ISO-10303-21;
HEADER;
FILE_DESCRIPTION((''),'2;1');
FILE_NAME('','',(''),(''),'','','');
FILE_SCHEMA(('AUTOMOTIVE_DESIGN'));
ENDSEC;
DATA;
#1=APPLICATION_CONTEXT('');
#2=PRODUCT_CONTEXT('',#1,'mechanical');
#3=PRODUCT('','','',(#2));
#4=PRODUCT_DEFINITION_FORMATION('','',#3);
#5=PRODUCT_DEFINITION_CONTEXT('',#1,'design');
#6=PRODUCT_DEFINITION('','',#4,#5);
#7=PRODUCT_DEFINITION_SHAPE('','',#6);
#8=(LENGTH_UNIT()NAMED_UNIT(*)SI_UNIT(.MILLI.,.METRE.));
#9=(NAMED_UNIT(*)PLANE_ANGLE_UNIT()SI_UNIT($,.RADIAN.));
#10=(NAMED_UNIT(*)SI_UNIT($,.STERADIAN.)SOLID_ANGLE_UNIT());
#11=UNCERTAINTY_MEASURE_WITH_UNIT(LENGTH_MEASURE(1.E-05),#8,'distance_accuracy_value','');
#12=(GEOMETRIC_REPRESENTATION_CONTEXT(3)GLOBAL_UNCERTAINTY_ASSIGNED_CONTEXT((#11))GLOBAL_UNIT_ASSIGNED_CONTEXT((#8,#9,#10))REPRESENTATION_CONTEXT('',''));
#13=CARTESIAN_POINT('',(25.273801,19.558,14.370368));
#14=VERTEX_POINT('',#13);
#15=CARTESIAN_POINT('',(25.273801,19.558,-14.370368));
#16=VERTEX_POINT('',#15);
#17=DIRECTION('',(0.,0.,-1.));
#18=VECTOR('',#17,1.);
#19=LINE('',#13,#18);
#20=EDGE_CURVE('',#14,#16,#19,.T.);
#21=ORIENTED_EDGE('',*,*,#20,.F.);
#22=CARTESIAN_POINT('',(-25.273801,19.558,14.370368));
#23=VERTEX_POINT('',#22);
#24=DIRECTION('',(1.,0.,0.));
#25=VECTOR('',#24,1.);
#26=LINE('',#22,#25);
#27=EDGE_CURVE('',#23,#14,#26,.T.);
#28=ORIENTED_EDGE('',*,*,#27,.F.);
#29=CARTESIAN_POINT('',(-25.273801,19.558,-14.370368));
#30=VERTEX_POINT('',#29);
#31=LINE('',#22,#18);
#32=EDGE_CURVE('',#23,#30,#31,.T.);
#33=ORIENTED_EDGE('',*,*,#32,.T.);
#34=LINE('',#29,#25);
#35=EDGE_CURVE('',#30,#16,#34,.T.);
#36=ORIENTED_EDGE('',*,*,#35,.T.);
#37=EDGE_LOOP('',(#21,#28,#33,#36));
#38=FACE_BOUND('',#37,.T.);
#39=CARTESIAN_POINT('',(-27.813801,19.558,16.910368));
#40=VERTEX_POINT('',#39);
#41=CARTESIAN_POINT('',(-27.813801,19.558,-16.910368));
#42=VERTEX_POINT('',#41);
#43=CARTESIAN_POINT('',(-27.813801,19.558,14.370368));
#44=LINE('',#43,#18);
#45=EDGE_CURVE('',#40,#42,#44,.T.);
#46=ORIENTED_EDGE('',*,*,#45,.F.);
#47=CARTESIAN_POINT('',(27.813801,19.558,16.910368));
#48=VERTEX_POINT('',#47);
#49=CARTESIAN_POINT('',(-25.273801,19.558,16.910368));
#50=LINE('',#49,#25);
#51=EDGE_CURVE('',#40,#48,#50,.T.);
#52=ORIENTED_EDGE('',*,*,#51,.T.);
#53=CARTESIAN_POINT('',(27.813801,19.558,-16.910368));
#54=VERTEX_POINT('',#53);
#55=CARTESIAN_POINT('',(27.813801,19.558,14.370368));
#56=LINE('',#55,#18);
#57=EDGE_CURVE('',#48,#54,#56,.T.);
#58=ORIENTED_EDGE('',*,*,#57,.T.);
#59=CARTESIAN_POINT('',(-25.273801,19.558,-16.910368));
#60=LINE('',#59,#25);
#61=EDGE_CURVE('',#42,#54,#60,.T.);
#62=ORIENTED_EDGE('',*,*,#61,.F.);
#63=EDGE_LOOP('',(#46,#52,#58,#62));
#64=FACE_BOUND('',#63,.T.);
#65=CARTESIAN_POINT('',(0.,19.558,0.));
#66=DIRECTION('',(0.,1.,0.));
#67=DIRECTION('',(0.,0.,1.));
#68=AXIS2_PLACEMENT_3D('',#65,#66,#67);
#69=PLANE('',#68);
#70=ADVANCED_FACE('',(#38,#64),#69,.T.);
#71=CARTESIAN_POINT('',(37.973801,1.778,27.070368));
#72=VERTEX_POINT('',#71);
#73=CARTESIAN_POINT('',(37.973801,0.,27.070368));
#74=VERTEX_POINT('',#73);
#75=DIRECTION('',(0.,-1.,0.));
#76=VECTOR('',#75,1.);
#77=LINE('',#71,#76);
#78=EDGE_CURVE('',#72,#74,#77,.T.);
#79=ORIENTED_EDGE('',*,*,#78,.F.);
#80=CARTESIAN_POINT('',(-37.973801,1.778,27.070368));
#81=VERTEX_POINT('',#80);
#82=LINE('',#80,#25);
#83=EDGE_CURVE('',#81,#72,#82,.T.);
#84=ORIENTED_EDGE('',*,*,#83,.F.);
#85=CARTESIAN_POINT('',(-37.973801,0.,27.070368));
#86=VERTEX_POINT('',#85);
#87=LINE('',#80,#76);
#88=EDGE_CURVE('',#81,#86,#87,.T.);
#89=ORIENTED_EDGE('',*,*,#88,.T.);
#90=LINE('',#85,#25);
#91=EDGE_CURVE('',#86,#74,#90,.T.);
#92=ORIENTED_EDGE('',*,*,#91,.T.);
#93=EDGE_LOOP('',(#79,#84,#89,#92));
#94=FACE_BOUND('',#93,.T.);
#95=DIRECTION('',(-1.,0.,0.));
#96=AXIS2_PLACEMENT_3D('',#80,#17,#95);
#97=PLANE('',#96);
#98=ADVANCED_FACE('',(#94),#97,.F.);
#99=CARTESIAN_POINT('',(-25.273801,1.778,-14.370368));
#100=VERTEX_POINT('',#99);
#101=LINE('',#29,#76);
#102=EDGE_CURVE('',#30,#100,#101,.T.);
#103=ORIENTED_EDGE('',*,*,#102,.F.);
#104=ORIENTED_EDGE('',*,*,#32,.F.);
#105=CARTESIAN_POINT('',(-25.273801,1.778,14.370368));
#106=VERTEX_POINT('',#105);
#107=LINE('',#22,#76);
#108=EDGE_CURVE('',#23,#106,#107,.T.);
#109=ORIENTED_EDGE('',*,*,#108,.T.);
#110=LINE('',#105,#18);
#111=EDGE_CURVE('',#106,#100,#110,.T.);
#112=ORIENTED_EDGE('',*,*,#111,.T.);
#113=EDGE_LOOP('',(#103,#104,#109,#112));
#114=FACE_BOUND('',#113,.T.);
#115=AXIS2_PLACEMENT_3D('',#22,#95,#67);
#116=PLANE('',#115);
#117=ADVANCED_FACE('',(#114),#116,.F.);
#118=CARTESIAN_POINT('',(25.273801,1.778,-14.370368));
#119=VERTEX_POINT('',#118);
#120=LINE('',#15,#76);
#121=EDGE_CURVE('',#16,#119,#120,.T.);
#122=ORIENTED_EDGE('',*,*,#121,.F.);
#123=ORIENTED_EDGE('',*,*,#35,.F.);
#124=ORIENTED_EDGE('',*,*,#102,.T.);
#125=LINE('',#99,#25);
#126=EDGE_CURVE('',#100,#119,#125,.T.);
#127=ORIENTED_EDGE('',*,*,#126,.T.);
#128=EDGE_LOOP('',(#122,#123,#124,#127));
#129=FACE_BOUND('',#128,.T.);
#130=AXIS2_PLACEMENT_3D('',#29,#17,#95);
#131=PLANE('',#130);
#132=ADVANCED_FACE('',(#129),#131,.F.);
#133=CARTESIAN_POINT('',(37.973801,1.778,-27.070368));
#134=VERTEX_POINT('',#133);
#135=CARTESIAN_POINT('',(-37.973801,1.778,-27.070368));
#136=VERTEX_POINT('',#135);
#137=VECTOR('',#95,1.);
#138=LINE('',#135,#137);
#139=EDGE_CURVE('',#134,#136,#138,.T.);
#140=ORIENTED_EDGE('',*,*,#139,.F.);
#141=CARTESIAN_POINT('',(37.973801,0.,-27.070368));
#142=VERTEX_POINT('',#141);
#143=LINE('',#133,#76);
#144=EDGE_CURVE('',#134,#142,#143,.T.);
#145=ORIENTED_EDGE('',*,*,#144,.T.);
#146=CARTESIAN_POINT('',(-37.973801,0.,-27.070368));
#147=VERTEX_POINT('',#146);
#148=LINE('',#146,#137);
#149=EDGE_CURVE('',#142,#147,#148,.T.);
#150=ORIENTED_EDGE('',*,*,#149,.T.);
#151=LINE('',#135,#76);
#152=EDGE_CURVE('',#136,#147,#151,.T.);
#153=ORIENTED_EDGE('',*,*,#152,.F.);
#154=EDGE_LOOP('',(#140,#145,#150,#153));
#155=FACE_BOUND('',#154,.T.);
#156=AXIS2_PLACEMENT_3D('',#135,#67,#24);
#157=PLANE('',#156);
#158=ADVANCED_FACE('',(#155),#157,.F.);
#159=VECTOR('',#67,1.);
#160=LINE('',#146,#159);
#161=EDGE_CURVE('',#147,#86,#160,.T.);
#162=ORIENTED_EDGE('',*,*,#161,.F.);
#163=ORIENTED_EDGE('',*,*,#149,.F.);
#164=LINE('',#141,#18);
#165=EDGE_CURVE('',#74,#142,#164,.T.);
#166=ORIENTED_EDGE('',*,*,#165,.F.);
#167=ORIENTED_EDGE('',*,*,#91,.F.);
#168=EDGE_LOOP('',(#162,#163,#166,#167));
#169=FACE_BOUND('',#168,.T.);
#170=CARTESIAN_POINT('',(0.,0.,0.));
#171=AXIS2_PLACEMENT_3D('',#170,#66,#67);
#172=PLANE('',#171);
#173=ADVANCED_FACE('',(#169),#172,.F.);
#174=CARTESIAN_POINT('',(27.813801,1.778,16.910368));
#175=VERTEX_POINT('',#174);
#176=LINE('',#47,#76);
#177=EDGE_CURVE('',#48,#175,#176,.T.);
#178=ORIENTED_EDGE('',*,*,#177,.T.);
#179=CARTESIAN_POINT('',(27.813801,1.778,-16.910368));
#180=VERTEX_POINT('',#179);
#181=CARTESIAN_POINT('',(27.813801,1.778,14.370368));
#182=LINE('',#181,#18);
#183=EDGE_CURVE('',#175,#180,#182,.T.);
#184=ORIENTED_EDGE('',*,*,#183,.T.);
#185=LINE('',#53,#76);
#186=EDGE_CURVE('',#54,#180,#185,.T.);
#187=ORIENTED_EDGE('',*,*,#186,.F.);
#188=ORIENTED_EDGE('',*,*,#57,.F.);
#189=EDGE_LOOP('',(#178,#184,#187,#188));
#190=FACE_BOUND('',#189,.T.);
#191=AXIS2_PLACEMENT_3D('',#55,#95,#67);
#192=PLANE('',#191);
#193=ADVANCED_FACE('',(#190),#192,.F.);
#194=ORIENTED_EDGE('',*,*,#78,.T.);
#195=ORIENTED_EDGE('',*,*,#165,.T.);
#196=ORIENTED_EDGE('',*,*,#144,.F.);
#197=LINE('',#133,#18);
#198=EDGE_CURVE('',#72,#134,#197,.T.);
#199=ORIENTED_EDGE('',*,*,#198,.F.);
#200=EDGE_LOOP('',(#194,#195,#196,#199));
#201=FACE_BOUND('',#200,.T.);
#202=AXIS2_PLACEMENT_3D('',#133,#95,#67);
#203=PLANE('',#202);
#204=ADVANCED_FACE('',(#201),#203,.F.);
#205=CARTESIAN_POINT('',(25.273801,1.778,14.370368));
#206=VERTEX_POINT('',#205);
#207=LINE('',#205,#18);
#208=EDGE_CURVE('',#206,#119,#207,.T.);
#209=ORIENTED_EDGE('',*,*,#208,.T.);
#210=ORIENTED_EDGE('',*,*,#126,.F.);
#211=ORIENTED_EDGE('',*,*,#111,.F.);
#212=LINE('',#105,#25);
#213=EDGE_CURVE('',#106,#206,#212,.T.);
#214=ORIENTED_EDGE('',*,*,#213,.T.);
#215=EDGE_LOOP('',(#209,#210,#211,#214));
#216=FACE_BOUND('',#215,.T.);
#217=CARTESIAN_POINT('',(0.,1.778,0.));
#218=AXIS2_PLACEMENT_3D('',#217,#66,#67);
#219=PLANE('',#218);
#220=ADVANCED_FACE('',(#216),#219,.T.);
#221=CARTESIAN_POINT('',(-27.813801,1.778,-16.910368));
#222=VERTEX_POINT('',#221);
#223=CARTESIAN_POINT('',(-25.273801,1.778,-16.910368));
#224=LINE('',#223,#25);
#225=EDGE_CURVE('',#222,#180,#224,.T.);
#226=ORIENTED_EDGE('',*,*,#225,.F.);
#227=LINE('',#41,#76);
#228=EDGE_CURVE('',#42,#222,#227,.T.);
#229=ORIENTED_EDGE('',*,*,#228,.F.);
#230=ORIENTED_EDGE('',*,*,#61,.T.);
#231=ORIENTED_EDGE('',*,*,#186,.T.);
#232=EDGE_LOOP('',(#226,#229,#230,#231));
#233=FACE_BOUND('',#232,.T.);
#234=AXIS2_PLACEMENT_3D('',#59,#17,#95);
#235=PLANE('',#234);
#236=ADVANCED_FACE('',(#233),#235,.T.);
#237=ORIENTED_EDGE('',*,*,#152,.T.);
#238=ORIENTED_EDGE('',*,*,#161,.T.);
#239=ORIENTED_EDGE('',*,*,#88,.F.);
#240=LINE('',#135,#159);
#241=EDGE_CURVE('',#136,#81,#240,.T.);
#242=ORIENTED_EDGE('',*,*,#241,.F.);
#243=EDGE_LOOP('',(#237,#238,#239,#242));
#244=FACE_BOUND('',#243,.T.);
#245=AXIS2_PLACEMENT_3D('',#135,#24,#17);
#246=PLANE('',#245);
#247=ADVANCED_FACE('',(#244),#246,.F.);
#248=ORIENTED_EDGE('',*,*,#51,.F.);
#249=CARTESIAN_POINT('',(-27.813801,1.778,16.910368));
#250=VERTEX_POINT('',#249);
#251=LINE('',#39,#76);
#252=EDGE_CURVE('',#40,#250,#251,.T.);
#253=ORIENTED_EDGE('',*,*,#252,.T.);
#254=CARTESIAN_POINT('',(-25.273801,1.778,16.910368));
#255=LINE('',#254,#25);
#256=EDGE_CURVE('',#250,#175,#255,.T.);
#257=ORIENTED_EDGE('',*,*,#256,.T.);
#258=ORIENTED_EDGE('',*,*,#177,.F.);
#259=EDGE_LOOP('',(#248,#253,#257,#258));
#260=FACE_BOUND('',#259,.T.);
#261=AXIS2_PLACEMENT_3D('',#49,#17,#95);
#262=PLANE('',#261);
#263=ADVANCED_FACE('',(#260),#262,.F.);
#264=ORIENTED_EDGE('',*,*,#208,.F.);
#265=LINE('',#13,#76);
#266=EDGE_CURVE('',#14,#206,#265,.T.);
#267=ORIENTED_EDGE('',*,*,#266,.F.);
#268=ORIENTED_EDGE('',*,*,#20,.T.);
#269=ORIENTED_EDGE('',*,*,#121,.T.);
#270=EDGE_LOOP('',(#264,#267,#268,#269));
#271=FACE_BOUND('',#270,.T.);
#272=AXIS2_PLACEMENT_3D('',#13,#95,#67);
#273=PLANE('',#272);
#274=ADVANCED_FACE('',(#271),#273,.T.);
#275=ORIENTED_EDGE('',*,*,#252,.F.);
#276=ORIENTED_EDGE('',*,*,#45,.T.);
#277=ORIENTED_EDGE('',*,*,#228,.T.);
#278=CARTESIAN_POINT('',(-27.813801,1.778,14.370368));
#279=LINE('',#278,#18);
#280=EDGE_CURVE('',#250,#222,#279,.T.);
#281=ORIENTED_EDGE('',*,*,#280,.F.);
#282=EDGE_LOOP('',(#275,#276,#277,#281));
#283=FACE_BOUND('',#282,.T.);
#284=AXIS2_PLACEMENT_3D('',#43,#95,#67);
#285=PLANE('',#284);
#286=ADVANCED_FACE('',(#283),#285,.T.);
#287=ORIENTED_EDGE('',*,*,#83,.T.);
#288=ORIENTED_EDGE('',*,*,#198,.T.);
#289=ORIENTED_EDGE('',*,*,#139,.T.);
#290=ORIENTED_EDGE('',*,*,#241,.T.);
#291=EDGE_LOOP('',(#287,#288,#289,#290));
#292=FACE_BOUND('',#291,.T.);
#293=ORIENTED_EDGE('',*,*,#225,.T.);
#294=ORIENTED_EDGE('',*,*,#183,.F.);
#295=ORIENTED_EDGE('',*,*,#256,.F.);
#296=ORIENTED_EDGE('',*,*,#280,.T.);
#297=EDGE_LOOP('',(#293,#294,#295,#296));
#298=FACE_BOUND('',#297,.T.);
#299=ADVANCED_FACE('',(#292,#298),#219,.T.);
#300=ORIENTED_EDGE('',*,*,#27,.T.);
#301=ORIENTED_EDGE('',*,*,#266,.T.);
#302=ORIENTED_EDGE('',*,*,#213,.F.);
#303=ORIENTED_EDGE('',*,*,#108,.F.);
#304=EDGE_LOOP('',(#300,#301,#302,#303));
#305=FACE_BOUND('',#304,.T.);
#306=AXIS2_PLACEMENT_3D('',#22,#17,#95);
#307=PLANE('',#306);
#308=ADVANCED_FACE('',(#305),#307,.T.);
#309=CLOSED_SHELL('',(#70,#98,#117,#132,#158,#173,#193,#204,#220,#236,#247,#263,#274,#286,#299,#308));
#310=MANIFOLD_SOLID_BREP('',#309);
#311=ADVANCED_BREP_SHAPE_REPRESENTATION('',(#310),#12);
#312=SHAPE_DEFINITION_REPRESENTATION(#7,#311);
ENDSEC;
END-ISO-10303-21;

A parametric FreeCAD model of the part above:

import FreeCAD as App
import Part
import Sketcher
from FreeCAD import Vector
Q = App.Units.Quantity

doc = App.newDocument("Part")
body = doc.addObject("PartDesign::Body", "Body")

# Sketch on XZ plane
sketch1 = doc.addObject("Sketcher::SketchObject", "Sketch")
body.addObject(sketch1)
sketch1.AttachmentSupport = (doc.XZ_Plane, [""])
sketch1.MapMode = "FlatFace"
sketch1.addGeometry(Part.LineSegment(Vector(-37.973801, -27.070368, 0), Vector(-37.973801, 27.070368, 0)), False)
sketch1.addGeometry(Part.LineSegment(Vector(-37.973801, 27.070368, 0), Vector(37.973801, 27.070368, 0)), False)
sketch1.addGeometry(Part.LineSegment(Vector(37.973801, 27.070368, 0), Vector(37.973801, -27.070368, 0)), False)
sketch1.addGeometry(Part.LineSegment(Vector(37.973801, -27.070368, 0), Vector(-37.973801, -27.070368, 0)), False)
sketch1.addConstraint(Sketcher.Constraint("Coincident", 0, 2, 1, 1))
sketch1.addConstraint(Sketcher.Constraint("Coincident", 1, 2, 2, 1))
sketch1.addConstraint(Sketcher.Constraint("Coincident", 2, 2, 3, 1))
sketch1.addConstraint(Sketcher.Constraint("Coincident", 3, 2, 0, 1))
sketch1.addConstraint(Sketcher.Constraint("Vertical", 0))
sketch1.addConstraint(Sketcher.Constraint("Horizontal", 1))
sketch1.addConstraint(Sketcher.Constraint("Vertical", 2))
sketch1.addConstraint(Sketcher.Constraint("Horizontal", 3))
sketch1.addConstraint(Sketcher.Constraint("Symmetric", 0, 2, 2, 2, -1, 1))
sketch1.addConstraint(Sketcher.Constraint("DistanceX", 1, 1, 1, 2, Q("75.947601 mm")))
sketch1.addConstraint(Sketcher.Constraint("DistanceY", 0, 1, 0, 2, Q("54.140737 mm")))
pad1 = doc.addObject("PartDesign::Pad", "Pad")
body.addObject(pad1)
pad1.Profile = sketch1
pad1.Length = Q("0.07 in")
pad1.Reversed = True

# Sketch on XZ plane
sketch2 = doc.addObject("Sketcher::SketchObject", "Sketch001")
body.addObject(sketch2)
sketch2.AttachmentSupport = (doc.XZ_Plane, [""])
sketch2.MapMode = "FlatFace"
sketch2.AttachmentOffset = App.Placement(Vector(0, 0, -0.07 * 25.4), App.Rotation())
sketch2.addGeometry(Part.LineSegment(Vector(-27.813801, -16.910368, 0), Vector(-27.813801, 16.910368, 0)), False)
sketch2.addGeometry(Part.LineSegment(Vector(-27.813801, 16.910368, 0), Vector(27.813801, 16.910368, 0)), False)
sketch2.addGeometry(Part.LineSegment(Vector(27.813801, 16.910368, 0), Vector(27.813801, -16.910368, 0)), False)
sketch2.addGeometry(Part.LineSegment(Vector(27.813801, -16.910368, 0), Vector(-27.813801, -16.910368, 0)), False)
sketch2.addGeometry(Part.LineSegment(Vector(25.273801, 14.370368, 0), Vector(-25.273801, 14.370368, 0)), False)
sketch2.addGeometry(Part.LineSegment(Vector(-25.273801, 14.370368, 0), Vector(-25.273801, -14.370368, 0)), False)
sketch2.addGeometry(Part.LineSegment(Vector(-25.273801, -14.370368, 0), Vector(25.273801, -14.370368, 0)), False)
sketch2.addGeometry(Part.LineSegment(Vector(25.273801, -14.370368, 0), Vector(25.273801, 14.370368, 0)), False)
sketch2.addConstraint(Sketcher.Constraint("Coincident", 0, 2, 1, 1))
sketch2.addConstraint(Sketcher.Constraint("Coincident", 1, 2, 2, 1))
sketch2.addConstraint(Sketcher.Constraint("Coincident", 2, 2, 3, 1))
sketch2.addConstraint(Sketcher.Constraint("Coincident", 3, 2, 0, 1))
sketch2.addConstraint(Sketcher.Constraint("Coincident", 4, 2, 5, 1))
sketch2.addConstraint(Sketcher.Constraint("Coincident", 5, 2, 6, 1))
sketch2.addConstraint(Sketcher.Constraint("Coincident", 6, 2, 7, 1))
sketch2.addConstraint(Sketcher.Constraint("Coincident", 7, 2, 4, 1))
sketch2.addConstraint(Sketcher.Constraint("Vertical", 0))
sketch2.addConstraint(Sketcher.Constraint("Horizontal", 1))
sketch2.addConstraint(Sketcher.Constraint("Vertical", 2))
sketch2.addConstraint(Sketcher.Constraint("Horizontal", 3))
sketch2.addConstraint(Sketcher.Constraint("Horizontal", 4))
sketch2.addConstraint(Sketcher.Constraint("Vertical", 5))
sketch2.addConstraint(Sketcher.Constraint("Horizontal", 6))
sketch2.addConstraint(Sketcher.Constraint("Vertical", 7))
sketch2.addConstraint(Sketcher.Constraint("Symmetric", 0, 2, 2, 2, -1, 1))
sketch2.addConstraint(Sketcher.Constraint("Symmetric", 4, 2, 6, 2, -1, 1))
sketch2.addConstraint(Sketcher.Constraint("DistanceX", 0, 2, 4, 2, Q("0.1 in")))
sketch2.addConstraint(Sketcher.Constraint("DistanceY", 4, 2, 0, 2, Q("0.1 in")))
sketch2.addConstraint(Sketcher.Constraint("DistanceX", 1, 1, 1, 2, Q("55.627601 mm")))
sketch2.addConstraint(Sketcher.Constraint("DistanceY", 0, 1, 0, 2, Q("33.820737 mm")))
pad2 = doc.addObject("PartDesign::Pad", "Pad001")
body.addObject(pad2)
pad2.Profile = sketch2
pad2.Length = Q("0.7 in")
pad2.Reversed = True

doc.recompute()
